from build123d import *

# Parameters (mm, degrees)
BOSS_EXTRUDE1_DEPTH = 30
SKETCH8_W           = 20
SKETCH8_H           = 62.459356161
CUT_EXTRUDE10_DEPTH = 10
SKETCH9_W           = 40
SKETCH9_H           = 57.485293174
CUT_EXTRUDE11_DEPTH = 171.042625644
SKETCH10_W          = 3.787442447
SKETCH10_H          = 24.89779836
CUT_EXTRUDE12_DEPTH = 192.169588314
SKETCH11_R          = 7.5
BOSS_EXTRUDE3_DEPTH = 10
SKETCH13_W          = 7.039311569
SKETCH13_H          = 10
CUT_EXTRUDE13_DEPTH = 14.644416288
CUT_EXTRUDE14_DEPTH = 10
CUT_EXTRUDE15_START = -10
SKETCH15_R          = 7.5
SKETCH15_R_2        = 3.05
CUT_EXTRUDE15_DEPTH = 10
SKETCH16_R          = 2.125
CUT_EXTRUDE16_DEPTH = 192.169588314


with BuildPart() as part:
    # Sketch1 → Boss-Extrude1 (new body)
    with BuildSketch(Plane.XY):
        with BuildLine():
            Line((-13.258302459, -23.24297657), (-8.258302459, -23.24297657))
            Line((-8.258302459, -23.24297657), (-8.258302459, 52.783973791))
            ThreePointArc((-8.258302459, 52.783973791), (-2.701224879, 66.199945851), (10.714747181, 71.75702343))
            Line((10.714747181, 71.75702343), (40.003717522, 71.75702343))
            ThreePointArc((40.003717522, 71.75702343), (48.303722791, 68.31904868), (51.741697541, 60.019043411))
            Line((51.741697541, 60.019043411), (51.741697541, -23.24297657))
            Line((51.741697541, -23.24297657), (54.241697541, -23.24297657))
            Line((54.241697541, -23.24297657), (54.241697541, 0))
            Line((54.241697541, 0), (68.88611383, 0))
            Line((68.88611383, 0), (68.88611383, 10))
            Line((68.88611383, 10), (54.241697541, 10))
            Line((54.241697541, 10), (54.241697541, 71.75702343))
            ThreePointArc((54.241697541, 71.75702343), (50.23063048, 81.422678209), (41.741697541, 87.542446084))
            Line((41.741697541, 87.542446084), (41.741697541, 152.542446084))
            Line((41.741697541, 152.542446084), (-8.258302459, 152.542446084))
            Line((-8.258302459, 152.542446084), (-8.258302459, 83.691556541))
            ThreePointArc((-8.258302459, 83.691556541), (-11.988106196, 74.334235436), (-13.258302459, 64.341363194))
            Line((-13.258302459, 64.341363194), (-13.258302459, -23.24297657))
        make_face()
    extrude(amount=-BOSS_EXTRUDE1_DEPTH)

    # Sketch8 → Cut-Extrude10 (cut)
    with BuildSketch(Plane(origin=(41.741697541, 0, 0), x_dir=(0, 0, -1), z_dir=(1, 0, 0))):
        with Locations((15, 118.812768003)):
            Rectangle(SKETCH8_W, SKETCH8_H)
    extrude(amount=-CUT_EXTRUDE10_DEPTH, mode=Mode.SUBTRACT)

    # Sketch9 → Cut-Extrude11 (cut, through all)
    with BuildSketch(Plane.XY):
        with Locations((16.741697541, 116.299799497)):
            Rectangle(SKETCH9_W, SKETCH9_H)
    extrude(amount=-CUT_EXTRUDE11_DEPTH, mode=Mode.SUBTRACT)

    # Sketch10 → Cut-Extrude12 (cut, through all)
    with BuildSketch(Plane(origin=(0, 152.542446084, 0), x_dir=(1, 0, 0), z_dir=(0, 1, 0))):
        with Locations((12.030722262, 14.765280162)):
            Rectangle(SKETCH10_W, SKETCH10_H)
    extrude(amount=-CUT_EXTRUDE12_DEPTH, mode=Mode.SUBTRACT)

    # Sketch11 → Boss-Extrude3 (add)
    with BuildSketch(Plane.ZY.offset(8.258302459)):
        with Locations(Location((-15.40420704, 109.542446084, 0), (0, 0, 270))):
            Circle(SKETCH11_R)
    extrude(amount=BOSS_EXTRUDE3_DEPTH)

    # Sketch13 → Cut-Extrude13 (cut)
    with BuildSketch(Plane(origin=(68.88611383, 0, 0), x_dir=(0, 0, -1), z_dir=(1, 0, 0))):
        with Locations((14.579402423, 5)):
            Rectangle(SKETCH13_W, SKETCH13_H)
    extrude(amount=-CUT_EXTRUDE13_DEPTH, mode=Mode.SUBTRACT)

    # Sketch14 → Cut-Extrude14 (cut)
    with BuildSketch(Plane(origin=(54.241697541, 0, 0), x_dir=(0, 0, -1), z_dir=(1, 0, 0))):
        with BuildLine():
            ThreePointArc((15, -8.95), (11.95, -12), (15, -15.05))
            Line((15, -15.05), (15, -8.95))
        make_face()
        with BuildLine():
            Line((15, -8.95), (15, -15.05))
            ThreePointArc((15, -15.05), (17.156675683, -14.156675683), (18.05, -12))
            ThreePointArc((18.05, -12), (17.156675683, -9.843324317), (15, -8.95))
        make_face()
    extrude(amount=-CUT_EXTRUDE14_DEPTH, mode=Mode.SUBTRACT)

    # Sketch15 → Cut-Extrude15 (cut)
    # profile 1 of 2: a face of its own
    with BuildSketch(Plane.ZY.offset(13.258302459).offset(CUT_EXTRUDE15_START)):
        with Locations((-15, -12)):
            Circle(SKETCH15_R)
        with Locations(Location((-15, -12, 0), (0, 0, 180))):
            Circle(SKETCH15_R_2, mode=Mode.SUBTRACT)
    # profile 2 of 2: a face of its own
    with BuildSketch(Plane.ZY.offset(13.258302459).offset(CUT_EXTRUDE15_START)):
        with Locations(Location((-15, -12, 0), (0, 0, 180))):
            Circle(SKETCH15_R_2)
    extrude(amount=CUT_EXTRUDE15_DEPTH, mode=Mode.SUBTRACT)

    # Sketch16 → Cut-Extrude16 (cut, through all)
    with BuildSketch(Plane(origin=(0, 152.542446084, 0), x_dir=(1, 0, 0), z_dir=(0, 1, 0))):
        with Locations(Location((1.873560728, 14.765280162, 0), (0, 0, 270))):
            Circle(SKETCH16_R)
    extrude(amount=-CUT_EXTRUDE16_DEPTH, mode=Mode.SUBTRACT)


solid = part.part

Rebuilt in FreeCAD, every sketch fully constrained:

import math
import FreeCAD as App
import Part
import Sketcher
from FreeCAD import Vector
Q = App.Units.Quantity


def add_polygon(sketch, points):
    """Adds a closed chain of lines whose ends are joined by coincident constraints."""
    first, n = sketch.GeometryCount, len(points)
    for a, b in zip(points, points[1:] + points[:1]):
        sketch.addGeometry(Part.LineSegment(App.Vector(*a, 0), App.Vector(*b, 0)), False)
    for i in range(n):
        sketch.addConstraint(Sketcher.Constraint("Coincident", first + i, 2, first + (i + 1) % n, 1))

doc = App.newDocument("Part")
body = doc.addObject("PartDesign::Body", "Body")

# Sketch on XY plane
sketch1 = body.newObject("Sketcher::SketchObject", "Sketch")
sketch1.AttachmentSupport = (doc.getObject("XY_Plane"), [""])
sketch1.MapMode = "FlatFace"
sketch1.addGeometry([
    Part.LineSegment(Vector(-13.3, -23.2, 0), Vector(-8.3, -23.2, 0)),  # 0
    Part.LineSegment(Vector(-8.3, -23.2, 0), Vector(-8.3, 52.8, 0)),  # 1
    Part.ArcOfCircle(Part.Circle(Vector(10.7, 52.8, 0), Vector(0, 0, 1), 19), math.radians(90), math.radians(180)),  # 2
    Part.LineSegment(Vector(10.7, 71.8, 0), Vector(40, 71.8, 0)),  # 3
    Part.ArcOfCircle(Part.Circle(Vector(40, 60, 0), Vector(0, 0, 1), 11.7), math.radians(0), math.radians(90)),  # 4
    Part.LineSegment(Vector(51.7, 60, 0), Vector(51.7, -23.2, 0)),  # 5
    Part.LineSegment(Vector(51.7, -23.2, 0), Vector(54.2, -23.2, 0)),  # 6
    Part.LineSegment(Vector(54.2, -23.2, 0), Vector(54.2, 0, 0)),  # 7
    Part.LineSegment(Vector(54.2, 0, 0), Vector(68.9, 0, 0)),  # 8
    Part.LineSegment(Vector(68.9, 0, 0), Vector(68.9, 10, 0)),  # 9
    Part.LineSegment(Vector(68.9, 10, 0), Vector(54.2, 10, 0)),  # 10
    Part.LineSegment(Vector(54.2, 10, 0), Vector(54.2, 71.8, 0)),  # 11
    Part.ArcOfCircle(Part.Circle(Vector(35.2, 69.5, 0), Vector(0, 0, 1), 19.2), math.radians(7), math.radians(70)),  # 12
    Part.LineSegment(Vector(41.7, 87.5, 0), Vector(41.7, 152.5, 0)),  # 13
    Part.LineSegment(Vector(41.7, 152.5, 0), Vector(-8.3, 152.5, 0)),  # 14
    Part.LineSegment(Vector(-8.3, 152.5, 0), Vector(-8.3, 83.7, 0)),  # 15
    Part.ArcOfCircle(Part.Circle(Vector(26.7, 64.3, 0), Vector(0, 0, 1), 39.9), math.radians(151), math.radians(180)),  # 16
    Part.LineSegment(Vector(-13.3, 64.3, 0), Vector(-13.3, -23.2, 0)),  # 17
], False)
sketch1.addConstraint([
    Sketcher.Constraint("Coincident", 0, 2, 1, 1),
    Sketcher.Constraint("Tangent", 1, 2, 2, 2),
    Sketcher.Constraint("Tangent", 2, 1, 3, 1),
    Sketcher.Constraint("Tangent", 3, 2, 4, 2),
    Sketcher.Constraint("Tangent", 4, 1, 5, 1),
    Sketcher.Constraint("Coincident", 5, 2, 6, 1),
    Sketcher.Constraint("Coincident", 6, 2, 7, 1),
    Sketcher.Constraint("Coincident", 7, 2, 8, 1),
    Sketcher.Constraint("Coincident", 8, 2, 9, 1),
    Sketcher.Constraint("Coincident", 9, 2, 10, 1),
    Sketcher.Constraint("Coincident", 10, 2, 11, 1),
    Sketcher.Constraint("Coincident", 11, 2, 12, 1),
    Sketcher.Constraint("Coincident", 12, 2, 13, 1),
    Sketcher.Constraint("Coincident", 13, 2, 14, 1),
    Sketcher.Constraint("Coincident", 14, 2, 15, 1),
    Sketcher.Constraint("Coincident", 15, 2, 16, 1),
    Sketcher.Constraint("Tangent", 16, 2, 17, 1),
    Sketcher.Constraint("Coincident", 17, 2, 0, 1),
    Sketcher.Constraint("Horizontal", 0),
    Sketcher.Constraint("Vertical", 1),
    Sketcher.Constraint("Horizontal", 3),
    Sketcher.Constraint("Vertical", 5),
    Sketcher.Constraint("Horizontal", 6),
    Sketcher.Constraint("Vertical", 7),
    Sketcher.Constraint("Horizontal", 8),
    Sketcher.Constraint("Vertical", 9),
    Sketcher.Constraint("Horizontal", 10),
    Sketcher.Constraint("Vertical", 11),
    Sketcher.Constraint("Vertical", 13),
    Sketcher.Constraint("Horizontal", 14),
    Sketcher.Constraint("Vertical", 15),
    Sketcher.Constraint("Vertical", 17),
    Sketcher.Constraint("PointOnObject", 7, 2, -1),
    Sketcher.Constraint("Horizontal", 0, 2, 5, 2),
    Sketcher.Constraint("Horizontal", 3, 2, 11, 2),
    Sketcher.Constraint("Vertical", 7, 2, 10, 2),
    Sketcher.Constraint("Vertical", 1, 2, 14, 2),
    Sketcher.Constraint("DistanceX", 0, 1, 0, 2, Q("5 mm")),
    Sketcher.Constraint("DistanceX", 14, 2, 14, 1, Q("50 mm")),
    Sketcher.Constraint("DistanceY", 9, 1, 9, 2, Q("10 mm")),
    Sketcher.Constraint("DistanceY", 13, 1, 13, 2, Q("65 mm")),
    Sketcher.Constraint("DistanceX", 6, 1, 6, 2, Q("2.5 mm")),
    Sketcher.Constraint("Radius", 16, Q("39.942998 mm")),
    Sketcher.Constraint("DistanceX", 0, 2, 5, 2, Q("60 mm")),
    Sketcher.Constraint("Radius", 2, Q("18.97305 mm")),
    Sketcher.Constraint("Radius", 4, Q("11.73798 mm")),
    Sketcher.Constraint("Radius", 12, Q("19.173228 mm")),
    Sketcher.Constraint("DistanceY", 1, 1, 1, 2, Q("76.02695 mm")),
    Sketcher.Constraint("DistanceY", 15, 2, 15, 1, Q("68.85089 mm")),
    Sketcher.Constraint("DistanceY", 17, 2, 17, 1, Q("87.58434 mm")),
    Sketcher.Constraint("DistanceX", 8, 1, 8, 2, Q("14.644416 mm")),
    Sketcher.Constraint("DistanceY", 7, 1, 7, 2, Q("23.242977 mm")),
    Sketcher.Constraint("DistanceX", -1, 1, 2, 3, Q("10.714747 mm")),
])
pad1 = body.newObject("PartDesign::Pad", "Pad")
pad1.Profile = sketch1
pad1.Length = 30
pad1.Reversed = True

# Sketch on YZ plane
sketch2 = body.newObject("Sketcher::SketchObject", "Sketch001")
sketch2.AttachmentSupport = (doc.getObject("YZ_Plane"), [""])
sketch2.MapMode = "FlatFace"
sketch2.AttachmentOffset = App.Placement(Vector(0, 0, 41.741698), App.Rotation())
add_polygon(sketch2, [(150, -5), (88, -5), (88, -25), (150, -25)])  # lines 0-3
sketch2.addConstraint([
    Sketcher.Constraint("Horizontal", 0),
    Sketcher.Constraint("Vertical", 1),
    Sketcher.Constraint("Horizontal", 2),
    Sketcher.Constraint("Vertical", 3),
    Sketcher.Constraint("DistanceY", 1, 2, 1, 1, Q("20 mm")),
    Sketcher.Constraint("DistanceY", 0, 2, -1, 1, Q("5 mm")),
    Sketcher.Constraint("DistanceX", 0, 2, 0, 1, Q("62.459356 mm")),
    Sketcher.Constraint("DistanceX", -1, 1, 0, 2, Q("87.58309 mm")),
])
pocket1 = body.newObject("PartDesign::Pocket", "Pocket")
pocket1.Profile = sketch2
pocket1.Length = 10

# Sketch on XY plane
sketch3 = body.newObject("Sketcher::SketchObject", "Sketch002")
sketch3.AttachmentSupport = (doc.getObject("XY_Plane"), [""])
sketch3.MapMode = "FlatFace"
add_polygon(sketch3, [(-3, 145), (-3, 88), (37, 88), (37, 145)])  # lines 0-3
sketch3.addConstraint([
    Sketcher.Constraint("Vertical", 0),
    Sketcher.Constraint("Horizontal", 1),
    Sketcher.Constraint("Vertical", 2),
    Sketcher.Constraint("Horizontal", 3),
    Sketcher.Constraint("DistanceX", 1, 1, 1, 2, Q("40 mm")),
    Sketcher.Constraint("DistanceY", 0, 2, 0, 1, Q("57.485293 mm")),
    Sketcher.Constraint("DistanceX", 0, 2, -1, 1, Q("3.258302 mm")),
    Sketcher.Constraint("DistanceY", -1, 1, 0, 2, Q("87.557153 mm")),
])
pocket2 = body.newObject("PartDesign::Pocket", "Pocket001")
pocket2.Profile = sketch3
pocket2.Type = "ThroughAll"

# Sketch on XZ plane
sketch4 = body.newObject("Sketcher::SketchObject", "Sketch003")
sketch4.AttachmentSupport = (doc.getObject("XZ_Plane"), [""])
sketch4.MapMode = "FlatFace"
sketch4.AttachmentOffset = App.Placement(Vector(0, 0, -152.542446), App.Rotation())
add_polygon(sketch4, [(10.1, -27.2), (10.1, -2.3), (13.9, -2.3), (13.9, -27.2)])  # lines 0-3
sketch4.addConstraint([
    Sketcher.Constraint("Vertical", 0),
    Sketcher.Constraint("Horizontal", 1),
    Sketcher.Constraint("Vertical", 2),
    Sketcher.Constraint("Horizontal", 3),
    Sketcher.Constraint("DistanceY", 0, 1, 0, 2, Q("24.897798 mm")),
    Sketcher.Constraint("DistanceX", -1, 1, 0, 2, Q("10.137001 mm")),
    Sketcher.Constraint("DistanceX", 1, 1, 1, 2, Q("3.787442 mm")),
    Sketcher.Constraint("DistanceY", 0, 2, -1, 1, Q("2.316381 mm")),
])
pocket3 = body.newObject("PartDesign::Pocket", "Pocket002")
pocket3.Profile = sketch4
pocket3.Type = "ThroughAll"
pocket3.Reversed = True

# Sketch on YZ plane
sketch5 = body.newObject("Sketcher::SketchObject", "Sketch004")
sketch5.AttachmentSupport = (doc.getObject("YZ_Plane"), [""])
sketch5.MapMode = "FlatFace"
sketch5.AttachmentOffset = App.Placement(Vector(0, 0, -8.258302), App.Rotation())
sketch5.addGeometry(Part.Circle(Vector(110, -15, 0), Vector(0, 0, 1), 8), False)
sketch5.addConstraint([
    Sketcher.Constraint("Diameter", 0, Q("15 mm")),
    Sketcher.Constraint("DistanceX", -1, 1, 0, 3, Q("109.542446 mm")),
    Sketcher.Constraint("DistanceY", 0, 3, -1, 1, Q("15.404207 mm")),
])
pad2 = body.newObject("PartDesign::Pad", "Pad001")
pad2.Profile = sketch5
pad2.Length = 10
pad2.Reversed = True

# Sketch on YZ plane
sketch6 = body.newObject("Sketcher::SketchObject", "Sketch005")
sketch6.AttachmentSupport = (doc.getObject("YZ_Plane"), [""])
sketch6.MapMode = "FlatFace"
sketch6.AttachmentOffset = App.Placement(Vector(0, 0, 68.886114), App.Rotation())
add_polygon(sketch6, [(10, -11), (0, -11), (0, -18), (10, -18)])  # lines 0-3
sketch6.addConstraint([
    Sketcher.Constraint("Horizontal", 0),
    Sketcher.Constraint("Vertical", 1),
    Sketcher.Constraint("Horizontal", 2),
    Sketcher.Constraint("Vertical", 3),
    Sketcher.Constraint("PointOnObject", 0, 2, -2),
    Sketcher.Constraint("DistanceX", 0, 2, 0, 1, Q("10 mm")),
    Sketcher.Constraint("DistanceY", 1, 2, 1, 1, Q("7.039312 mm")),
    Sketcher.Constraint("DistanceY", 1, 2, -1, 1, Q("18.099058 mm")),
])
pocket4 = body.newObject("PartDesign::Pocket", "Pocket003")
pocket4.Profile = sketch6
pocket4.Length = 14.644416

# Sketch on YZ plane
sketch7 = body.newObject("Sketcher::SketchObject", "Sketch006")
sketch7.AttachmentSupport = (doc.getObject("YZ_Plane"), [""])
sketch7.MapMode = "FlatFace"
sketch7.AttachmentOffset = App.Placement(Vector(0, 0, 54.241698), App.Rotation())
sketch7.addGeometry([
    Part.ArcOfCircle(Part.Circle(Vector(-12, -15, 0), Vector(0, 0, 1), 3), math.radians(0), math.radians(180)),
    Part.ArcOfCircle(Part.Circle(Vector(-12, -15, 0), Vector(0, 0, 1), 3), math.radians(180), math.radians(270)),
    Part.ArcOfCircle(Part.Circle(Vector(-12, -15, 0), Vector(0, 0, 1), 3), math.radians(-90), math.radians(0)),
], False)
sketch7.addConstraint([
    Sketcher.Constraint("Tangent", 0, 2, 1, 1),
    Sketcher.Constraint("Tangent", 1, 2, 2, 1),
    Sketcher.Constraint("Tangent", 2, 2, 0, 1),
    Sketcher.Constraint("Horizontal", 2, 3, 0, 2),
    Sketcher.Constraint("Horizontal", 0, 2, 2, 2),
    Sketcher.Constraint("Vertical", 2, 3, 1, 2),
    Sketcher.Constraint("Radius", 0, Q("3.05 mm")),
    Sketcher.Constraint("DistanceX", 0, 3, -1, 1, Q("12 mm")),
    Sketcher.Constraint("DistanceY", 0, 3, -1, 1, Q("15 mm")),
])
pocket5 = body.newObject("PartDesign::Pocket", "Pocket004")
pocket5.Profile = sketch7
pocket5.Length = 10

# Sketch on YZ plane
sketch8 = body.newObject("Sketcher::SketchObject", "Sketch007")
sketch8.AttachmentSupport = (doc.getObject("YZ_Plane"), [""])
sketch8.MapMode = "FlatFace"
sketch8.AttachmentOffset = App.Placement(Vector(0, 0, -3.258302), App.Rotation())
sketch8.addGeometry(Part.Circle(Vector(-12, -15, 0), Vector(0, 0, 1), 8), False)
sketch8.addConstraint([
    Sketcher.Constraint("Diameter", 0, Q("15 mm")),
    Sketcher.Constraint("DistanceX", 0, 3, -1, 1, Q("12 mm")),
    Sketcher.Constraint("DistanceY", 0, 3, -1, 1, Q("15 mm")),
])
pocket6 = body.newObject("PartDesign::Pocket", "Pocket005")
pocket6.Profile = sketch8
pocket6.Length = 10

# Sketch on XZ plane
sketch9 = body.newObject("Sketcher::SketchObject", "Sketch008")
sketch9.AttachmentSupport = (doc.getObject("XZ_Plane"), [""])
sketch9.MapMode = "FlatFace"
sketch9.AttachmentOffset = App.Placement(Vector(0, 0, -152.542446), App.Rotation())
sketch9.addGeometry(Part.Circle(Vector(1.9, -14.8, 0), Vector(0, 0, 1), 2.1), False)
sketch9.addConstraint([
    Sketcher.Constraint("Diameter", 0, Q("4.25 mm")),
    Sketcher.Constraint("DistanceX", -1, 1, 0, 3, Q("1.873561 mm")),
    Sketcher.Constraint("DistanceY", 0, 3, -1, 1, Q("14.76528 mm")),
])
pocket7 = body.newObject("PartDesign::Pocket", "Pocket006")
pocket7.Profile = sketch9
pocket7.Type = "ThroughAll"
pocket7.Reversed = True

doc.recompute()
